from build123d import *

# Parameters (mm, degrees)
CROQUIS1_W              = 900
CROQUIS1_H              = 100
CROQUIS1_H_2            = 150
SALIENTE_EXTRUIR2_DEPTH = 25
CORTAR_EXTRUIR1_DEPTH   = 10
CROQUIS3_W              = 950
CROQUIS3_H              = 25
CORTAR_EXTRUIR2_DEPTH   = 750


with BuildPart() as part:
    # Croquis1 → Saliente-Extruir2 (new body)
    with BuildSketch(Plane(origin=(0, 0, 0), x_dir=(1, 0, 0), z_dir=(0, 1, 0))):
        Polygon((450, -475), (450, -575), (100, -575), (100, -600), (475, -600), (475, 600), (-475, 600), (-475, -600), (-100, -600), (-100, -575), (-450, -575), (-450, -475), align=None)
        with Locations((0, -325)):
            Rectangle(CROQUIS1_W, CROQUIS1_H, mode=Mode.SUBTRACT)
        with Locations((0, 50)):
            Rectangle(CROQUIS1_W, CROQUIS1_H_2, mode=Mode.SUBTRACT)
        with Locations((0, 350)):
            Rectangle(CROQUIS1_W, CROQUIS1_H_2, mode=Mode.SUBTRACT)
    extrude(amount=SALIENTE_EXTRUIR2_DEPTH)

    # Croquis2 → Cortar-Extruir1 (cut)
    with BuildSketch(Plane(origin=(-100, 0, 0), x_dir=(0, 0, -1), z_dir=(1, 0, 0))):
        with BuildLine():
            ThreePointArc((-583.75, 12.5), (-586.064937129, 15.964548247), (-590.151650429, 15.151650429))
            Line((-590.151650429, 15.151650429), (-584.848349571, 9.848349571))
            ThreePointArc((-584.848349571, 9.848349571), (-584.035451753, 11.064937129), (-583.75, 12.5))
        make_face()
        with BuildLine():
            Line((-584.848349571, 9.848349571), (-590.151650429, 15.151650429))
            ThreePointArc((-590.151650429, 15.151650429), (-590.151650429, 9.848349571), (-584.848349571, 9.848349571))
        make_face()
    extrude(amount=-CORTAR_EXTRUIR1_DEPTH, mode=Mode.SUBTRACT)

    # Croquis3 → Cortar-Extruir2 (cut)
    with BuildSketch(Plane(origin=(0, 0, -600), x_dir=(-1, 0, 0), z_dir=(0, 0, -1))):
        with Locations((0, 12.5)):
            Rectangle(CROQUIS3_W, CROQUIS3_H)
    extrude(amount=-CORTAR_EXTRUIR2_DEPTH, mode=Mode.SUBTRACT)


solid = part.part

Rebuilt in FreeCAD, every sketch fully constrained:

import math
import FreeCAD as App
import Part
import Sketcher
from FreeCAD import Vector


def add_polygon(sketch, points):
    """Adds a closed chain of lines whose ends are joined by coincident constraints."""
    first, n = sketch.GeometryCount, len(points)
    for a, b in zip(points, points[1:] + points[:1]):
        sketch.addGeometry(Part.LineSegment(App.Vector(*a, 0), App.Vector(*b, 0)), False)
    for i in range(n):
        sketch.addConstraint(Sketcher.Constraint("Coincident", first + i, 2, first + (i + 1) % n, 1))

doc = App.newDocument("Part")
body = doc.addObject("PartDesign::Body", "Body")

sketch1 = body.newObject("Sketcher::SketchObject", "Sketch")
sketch1.AttachmentSupport = (doc.getObject("XZ_Plane"), [""])
sketch1.MapMode = "FlatFace"
add_polygon(sketch1, [(450, 475), (450, 575), (100, 575), (100, 600), (475, 600), (475, -600), (-475, -600), (-475, 600), (-100, 600), (-100, 575), (-450, 575), (-450, 475)])
add_polygon(sketch1, [(450, 375), (-450, 375), (-450, 275), (450, 275)])
add_polygon(sketch1, [(450, 25), (-450, 25), (-450, -125), (450, -125)])
add_polygon(sketch1, [(450, -275), (-450, -275), (-450, -425), (450, -425)])
sketch1.addConstraint(Sketcher.Constraint("Vertical", 0))
sketch1.addConstraint(Sketcher.Constraint("Horizontal", 1))
sketch1.addConstraint(Sketcher.Constraint("Vertical", 2))
sketch1.addConstraint(Sketcher.Constraint("Horizontal", 3))
sketch1.addConstraint(Sketcher.Constraint("Vertical", 4))
sketch1.addConstraint(Sketcher.Constraint("Horizontal", 5))
sketch1.addConstraint(Sketcher.Constraint("Vertical", 6))
sketch1.addConstraint(Sketcher.Constraint("Horizontal", 7))
sketch1.addConstraint(Sketcher.Constraint("Vertical", 8))
sketch1.addConstraint(Sketcher.Constraint("Horizontal", 9))
sketch1.addConstraint(Sketcher.Constraint("Vertical", 10))
sketch1.addConstraint(Sketcher.Constraint("Horizontal", 11))
sketch1.addConstraint(Sketcher.Constraint("Horizontal", 12))
sketch1.addConstraint(Sketcher.Constraint("Vertical", 13))
sketch1.addConstraint(Sketcher.Constraint("Horizontal", 14))
sketch1.addConstraint(Sketcher.Constraint("Vertical", 15))
sketch1.addConstraint(Sketcher.Constraint("Horizontal", 16))
sketch1.addConstraint(Sketcher.Constraint("Vertical", 17))
sketch1.addConstraint(Sketcher.Constraint("Horizontal", 18))
sketch1.addConstraint(Sketcher.Constraint("Vertical", 19))
sketch1.addConstraint(Sketcher.Constraint("Horizontal", 20))
sketch1.addConstraint(Sketcher.Constraint("Vertical", 21))
sketch1.addConstraint(Sketcher.Constraint("Horizontal", 22))
sketch1.addConstraint(Sketcher.Constraint("Vertical", 23))
sketch1.addConstraint(Sketcher.Constraint("Symmetric", 3, 2, 5, 2, -1, 1))
sketch1.addConstraint(Sketcher.Constraint("Symmetric", 14, 2, 20, 2, -1, 1))
sketch1.addConstraint(Sketcher.Constraint("Symmetric", 2, 2, 7, 2, -2))
sketch1.addConstraint(Sketcher.Constraint("Symmetric", 0, 2, 9, 2, -2))
sketch1.addConstraint(Sketcher.Constraint("Vertical", 10, 2, 12, 2))
sketch1.addConstraint(Sketcher.Constraint("Vertical", 11, 2, 14, 2))
sketch1.addConstraint(Sketcher.Constraint("Vertical", 13, 2, 16, 2))
sketch1.addConstraint(Sketcher.Constraint("Vertical", 15, 2, 18, 2))
sketch1.addConstraint(Sketcher.Constraint("Vertical", 19, 2, 22, 2))
sketch1.addConstraint(Sketcher.Constraint("Equal", 10, 13))
sketch1.addConstraint(Sketcher.Constraint("Equal", 19, 21))
sketch1.addConstraint(Sketcher.Constraint("DistanceX", 1, 2, 1, 1, 350.0))
sketch1.addConstraint(Sketcher.Constraint("DistanceX", 3, 1, 3, 2, 375.0))
sketch1.addConstraint(Sketcher.Constraint("DistanceX", 5, 2, 5, 1, 950.0))
sketch1.addConstraint(Sketcher.Constraint("DistanceY", 0, 1, 0, 2, 100.0))
sketch1.addConstraint(Sketcher.Constraint("DistanceY", 2, 1, 2, 2, 25.0))
sketch1.addConstraint(Sketcher.Constraint("DistanceY", 4, 2, 4, 1, 1200.0))
sketch1.addConstraint(Sketcher.Constraint("DistanceY", 17, 2, 17, 1, 150.0))
sketch1.addConstraint(Sketcher.Constraint("DistanceY", -1, 1, 12, 2, 375.0))
sketch1.addConstraint(Sketcher.Constraint("DistanceY", -1, 1, 16, 2, 25.0))
pad1 = body.newObject("PartDesign::Pad", "Pad")
pad1.Profile = sketch1
pad1.Length = 25
pad1.Reversed = True

sketch2 = body.newObject("Sketcher::SketchObject", "Sketch001")
sketch2.AttachmentSupport = (doc.getObject("YZ_Plane"), [""])
sketch2.MapMode = "FlatFace"
sketch2.AttachmentOffset = App.Placement(Vector(0, 0, -100), App.Rotation())
sketch2.addGeometry(Part.ArcOfCircle(Part.Circle(Vector(12.5, 587.5, 0), Vector(0, 0, 1), 3.8), math.radians(-90), math.radians(45)), False)
sketch2.addGeometry(Part.ArcOfCircle(Part.Circle(Vector(12.5, 587.5, 0), Vector(0, 0, 1), 3.7), math.radians(45), math.radians(225)), False)
sketch2.addGeometry(Part.ArcOfCircle(Part.Circle(Vector(12.5, 587.5, 0), Vector(0, 0, 1), 3.7), math.radians(-135), math.radians(-90)), False)
sketch2.addConstraint(Sketcher.Constraint("Tangent", 0, 2, 1, 1))
sketch2.addConstraint(Sketcher.Constraint("Tangent", 1, 2, 2, 1))
sketch2.addConstraint(Sketcher.Constraint("Tangent", 2, 2, 0, 1))
sketch2.addConstraint(Sketcher.Constraint("Vertical", 1, 3, 2, 2))
sketch2.addConstraint(Sketcher.Constraint("Radius", 0, 3.75))
sketch2.addConstraint(Sketcher.Constraint("DistanceX", -1, 1, 0, 3, 12.5))
sketch2.addConstraint(Sketcher.Constraint("DistanceY", -1, 1, 0, 3, 587.5))
sketch2.addConstraint(Sketcher.Constraint("DistanceX", 1, 2, 0, 2, 5.303301))
sketch2.addConstraint(Sketcher.Constraint("DistanceX", -1, 1, 0, 2, 15.15165))
pocket1 = body.newObject("PartDesign::Pocket", "Pocket")
pocket1.Profile = sketch2
pocket1.Length = 10

sketch3 = body.newObject("Sketcher::SketchObject", "Sketch002")
sketch3.AttachmentSupport = (doc.getObject("XY_Plane"), [""])
sketch3.MapMode = "FlatFace"
sketch3.AttachmentOffset = App.Placement(Vector(0, 0, -600), App.Rotation())
add_polygon(sketch3, [(475, 25), (475, 0), (-475, 0), (-475, 25)])
sketch3.addConstraint(Sketcher.Constraint("Vertical", 0))
sketch3.addConstraint(Sketcher.Constraint("Horizontal", 1))
sketch3.addConstraint(Sketcher.Constraint("Vertical", 2))
sketch3.addConstraint(Sketcher.Constraint("Horizontal", 3))
sketch3.addConstraint(Sketcher.Constraint("Symmetric", 0, 2, 1, 2, -1, 1))
sketch3.addConstraint(Sketcher.Constraint("DistanceX", 1, 2, 1, 1, 950.0))
sketch3.addConstraint(Sketcher.Constraint("DistanceY", 0, 2, 0, 1, 25.0))
pocket2 = body.newObject("PartDesign::Pocket", "Pocket001")
pocket2.Profile = sketch3
pocket2.Length = 750
pocket2.Reversed = True

doc.recompute()
